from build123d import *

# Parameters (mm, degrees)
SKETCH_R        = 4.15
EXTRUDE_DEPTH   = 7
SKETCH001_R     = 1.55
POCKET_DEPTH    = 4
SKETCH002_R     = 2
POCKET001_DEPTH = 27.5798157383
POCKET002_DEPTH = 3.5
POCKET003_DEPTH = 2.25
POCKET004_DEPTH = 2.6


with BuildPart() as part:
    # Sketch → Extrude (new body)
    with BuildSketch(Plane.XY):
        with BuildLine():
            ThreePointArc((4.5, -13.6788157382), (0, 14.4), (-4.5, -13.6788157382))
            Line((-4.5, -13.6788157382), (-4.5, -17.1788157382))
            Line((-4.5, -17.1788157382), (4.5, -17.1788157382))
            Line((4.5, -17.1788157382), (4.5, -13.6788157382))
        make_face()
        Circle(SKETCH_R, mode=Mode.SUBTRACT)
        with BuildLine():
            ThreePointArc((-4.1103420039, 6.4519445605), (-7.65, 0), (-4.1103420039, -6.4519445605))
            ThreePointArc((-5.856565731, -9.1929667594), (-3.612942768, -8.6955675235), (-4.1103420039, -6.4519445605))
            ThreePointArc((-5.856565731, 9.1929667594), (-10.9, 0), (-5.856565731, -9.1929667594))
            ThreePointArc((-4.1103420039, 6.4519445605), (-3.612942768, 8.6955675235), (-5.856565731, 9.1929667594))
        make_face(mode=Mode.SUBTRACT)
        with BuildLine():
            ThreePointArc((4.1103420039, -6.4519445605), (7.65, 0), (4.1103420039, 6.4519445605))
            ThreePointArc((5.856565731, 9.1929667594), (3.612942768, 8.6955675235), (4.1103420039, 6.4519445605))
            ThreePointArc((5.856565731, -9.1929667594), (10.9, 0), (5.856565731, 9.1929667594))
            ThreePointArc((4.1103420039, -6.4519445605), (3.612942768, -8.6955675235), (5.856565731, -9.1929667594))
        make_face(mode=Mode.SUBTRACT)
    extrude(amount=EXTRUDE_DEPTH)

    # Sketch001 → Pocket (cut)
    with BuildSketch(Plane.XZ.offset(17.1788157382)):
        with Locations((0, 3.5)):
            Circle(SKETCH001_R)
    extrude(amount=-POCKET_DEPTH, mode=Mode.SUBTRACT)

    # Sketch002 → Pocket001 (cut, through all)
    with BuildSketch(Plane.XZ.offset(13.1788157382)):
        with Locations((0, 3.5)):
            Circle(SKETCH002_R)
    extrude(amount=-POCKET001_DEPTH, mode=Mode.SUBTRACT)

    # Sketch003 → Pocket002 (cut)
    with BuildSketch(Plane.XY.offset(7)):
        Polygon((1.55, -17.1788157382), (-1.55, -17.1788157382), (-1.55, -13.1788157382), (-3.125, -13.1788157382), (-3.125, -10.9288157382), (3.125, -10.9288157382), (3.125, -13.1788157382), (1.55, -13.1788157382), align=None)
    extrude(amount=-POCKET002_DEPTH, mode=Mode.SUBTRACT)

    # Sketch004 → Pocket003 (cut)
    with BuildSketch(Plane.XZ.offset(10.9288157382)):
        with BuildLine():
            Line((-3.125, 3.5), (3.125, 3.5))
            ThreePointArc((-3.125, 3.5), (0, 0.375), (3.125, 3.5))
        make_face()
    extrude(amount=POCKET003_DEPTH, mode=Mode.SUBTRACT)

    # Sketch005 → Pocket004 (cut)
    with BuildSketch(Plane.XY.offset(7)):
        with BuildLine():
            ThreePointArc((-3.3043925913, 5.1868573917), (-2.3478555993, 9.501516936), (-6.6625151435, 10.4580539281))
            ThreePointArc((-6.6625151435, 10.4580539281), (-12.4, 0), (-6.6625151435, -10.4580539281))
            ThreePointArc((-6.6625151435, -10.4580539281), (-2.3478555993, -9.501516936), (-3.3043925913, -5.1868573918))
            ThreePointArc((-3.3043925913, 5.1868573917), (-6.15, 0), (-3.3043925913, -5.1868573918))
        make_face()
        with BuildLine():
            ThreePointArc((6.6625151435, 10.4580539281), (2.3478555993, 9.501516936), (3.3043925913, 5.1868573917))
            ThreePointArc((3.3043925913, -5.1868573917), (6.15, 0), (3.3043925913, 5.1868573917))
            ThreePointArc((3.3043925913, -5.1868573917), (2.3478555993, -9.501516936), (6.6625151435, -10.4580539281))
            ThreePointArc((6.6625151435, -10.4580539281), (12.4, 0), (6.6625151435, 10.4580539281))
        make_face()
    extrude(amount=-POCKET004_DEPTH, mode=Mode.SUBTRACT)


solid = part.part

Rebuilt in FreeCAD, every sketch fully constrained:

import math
import FreeCAD as App
import Part
import Sketcher
from FreeCAD import Vector

doc = App.newDocument("Part")
body = doc.addObject("PartDesign::Body", "Body")

# Sketch on XY plane
sketch1 = body.newObject("Sketcher::SketchObject", "Sketch")
sketch1.AttachmentSupport = (doc.getObject("XY_Plane"), [""])
sketch1.MapMode = "FlatFace"
sketch1.addGeometry([
    Part.ArcOfCircle(Part.Circle(Vector(0, 0, 0), Vector(0, 0, 1), 14.4), math.radians(-71.790043), math.radians(251.790043)),  # 0
    Part.LineSegment(Vector(-4.5, -13.678816, 0), Vector(-4.5, -17.178816, 0)),  # 1
    Part.LineSegment(Vector(-4.5, -17.178816, 0), Vector(4.5, -17.178816, 0)),  # 2
    Part.LineSegment(Vector(4.5, -17.178816, 0), Vector(4.5, -13.678816, 0)),  # 3
    Part.ArcOfCircle(Part.Circle(Vector(-4.983454, 7.822456, 0), Vector(0, 0, 1), 1.625), math.radians(-57.5), math.radians(122.5)),  # 4
    Part.ArcOfCircle(Part.Circle(Vector(0, 0, 0), Vector(0, 0, 1), 7.65), math.radians(122.5), math.radians(237.5)),  # 5
    Part.ArcOfCircle(Part.Circle(Vector(-4.983454, -7.822456, 0), Vector(0, 0, 1), 1.625), math.radians(-122.5), math.radians(57.5)),  # 6
    Part.ArcOfCircle(Part.Circle(Vector(0, 0, 0), Vector(0, 0, 1), 10.9), math.radians(122.5), math.radians(237.5)),  # 7
    Part.Circle(Vector(0, 0, 0), Vector(0, 0, 1), 4.15),  # 8
    Part.ArcOfCircle(Part.Circle(Vector(4.983454, -7.822456, 0), Vector(0, 0, 1), 1.625), math.radians(122.5), math.radians(302.5)),  # 9
    Part.ArcOfCircle(Part.Circle(Vector(0, 0, 0), Vector(0, 0, 1), 7.65), math.radians(-57.5), math.radians(57.5)),  # 10
    Part.ArcOfCircle(Part.Circle(Vector(4.983454, 7.822456, 0), Vector(0, 0, 1), 1.625), math.radians(57.5), math.radians(237.5)),  # 11
    Part.ArcOfCircle(Part.Circle(Vector(0, 0, 0), Vector(0, 0, 1), 10.9), math.radians(-57.5), math.radians(57.5)),  # 12
], False)
sketch1.addConstraint([
    Sketcher.Constraint("Coincident", 0, 2, 1, 1),
    Sketcher.Constraint("Coincident", 1, 2, 2, 1),
    Sketcher.Constraint("Coincident", 2, 2, 3, 1),
    Sketcher.Constraint("Coincident", 3, 2, 0, 1),
    Sketcher.Constraint("Tangent", 4, 1, 5, 1),
    Sketcher.Constraint("Tangent", 5, 2, 6, 2),
    Sketcher.Constraint("Tangent", 6, 1, 7, 2),
    Sketcher.Constraint("Tangent", 7, 1, 4, 2),
    Sketcher.Constraint("Tangent", 9, 1, 10, 1),
    Sketcher.Constraint("Tangent", 10, 2, 11, 2),
    Sketcher.Constraint("Tangent", 11, 1, 12, 2),
    Sketcher.Constraint("Tangent", 12, 1, 9, 2),
    Sketcher.Constraint("Vertical", 1),
    Sketcher.Constraint("Horizontal", 2),
    Sketcher.Constraint("Vertical", 3),
    Sketcher.Constraint("Coincident", 0, 3, -1, 1),
    Sketcher.Constraint("Coincident", 5, 3, -1, 1),
    Sketcher.Constraint("Coincident", 7, 3, -1, 1),
    Sketcher.Constraint("Coincident", 8, 3, -1, 1),
    Sketcher.Constraint("Coincident", 10, 3, -1, 1),
    Sketcher.Constraint("Coincident", 12, 3, -1, 1),
    Sketcher.Constraint("Equal", 6, 9),
    Sketcher.Constraint("Equal", 5, 10),
    Sketcher.Constraint("Horizontal", 6, 3, 9, 3),
    Sketcher.Constraint("Horizontal", 4, 3, 11, 3),
    Sketcher.Constraint("Horizontal", 0, 2, 3, 2),
    Sketcher.Constraint("Vertical", 4, 3, 6, 3),
    Sketcher.Constraint("Diameter", 8, 8.3),
    Sketcher.Constraint("Radius", 0, 14.4),
    Sketcher.Constraint("Radius", 7, 10.9),
    Sketcher.Constraint("DistanceX", 2, 1, 2, 2, 9.0),
    Sketcher.Constraint("Radius", 5, 7.65),
    Sketcher.Constraint("DistanceY", 1, 2, 1, 1, 3.5),
    Sketcher.Constraint("DistanceY", 6, 3, 4, 3, 15.644911),
])
pad1 = body.newObject("PartDesign::Pad", "Pad")
pad1.Profile = sketch1
pad1.Length = 7

# Sketch on XZ plane
sketch2 = body.newObject("Sketcher::SketchObject", "Sketch001")
sketch2.AttachmentSupport = (doc.getObject("XZ_Plane"), [""])
sketch2.MapMode = "FlatFace"
sketch2.AttachmentOffset = App.Placement(Vector(0, 0, 17.178816), App.Rotation())
sketch2.addGeometry(Part.Circle(Vector(0, 3.5, 0), Vector(0, 0, 1), 1.55), False)
sketch2.addConstraint([
    Sketcher.Constraint("PointOnObject", 0, 3, -2),
    Sketcher.Constraint("Diameter", 0, 3.1),
    Sketcher.Constraint("DistanceY", -1, 1, 0, 3, 3.5),
])
pocket1 = body.newObject("PartDesign::Pocket", "Pocket")
pocket1.Profile = sketch2
pocket1.Length = 4

# Sketch on XZ plane
sketch3 = body.newObject("Sketcher::SketchObject", "Sketch002")
sketch3.AttachmentSupport = (doc.getObject("XZ_Plane"), [""])
sketch3.MapMode = "FlatFace"
sketch3.AttachmentOffset = App.Placement(Vector(0, 0, 13.178816), App.Rotation())
sketch3.addGeometry(Part.Circle(Vector(0, 3.5, 0), Vector(0, 0, 1), 2), False)
sketch3.addConstraint([
    Sketcher.Constraint("PointOnObject", 0, 3, -2),
    Sketcher.Constraint("Diameter", 0, 4.0),
    Sketcher.Constraint("DistanceY", -1, 1, 0, 3, 3.5),
])
pocket2 = body.newObject("PartDesign::Pocket", "Pocket001")
pocket2.Profile = sketch3
pocket2.Type = "ThroughAll"

# Sketch on XY plane
sketch4 = body.newObject("Sketcher::SketchObject", "Sketch003")
sketch4.AttachmentSupport = (doc.getObject("XY_Plane"), [""])
sketch4.MapMode = "FlatFace"
sketch4.AttachmentOffset = App.Placement(Vector(0, 0, 7), App.Rotation())
sketch4.addGeometry([
    Part.LineSegment(Vector(-1.55, -17.178816, 0), Vector(1.55, -17.178816, 0)),  # 0
    Part.LineSegment(Vector(1.55, -17.178816, 0), Vector(1.55, -13.178816, 0)),  # 1
    Part.LineSegment(Vector(1.55, -13.178816, 0), Vector(3.125, -13.178816, 0)),  # 2
    Part.LineSegment(Vector(3.125, -13.178816, 0), Vector(3.125, -10.928816, 0)),  # 3
    Part.LineSegment(Vector(3.125, -10.928816, 0), Vector(-3.125, -10.928816, 0)),  # 4
    Part.LineSegment(Vector(-3.125, -10.928816, 0), Vector(-3.125, -13.178816, 0)),  # 5
    Part.LineSegment(Vector(-3.125, -13.178816, 0), Vector(-1.55, -13.178816, 0)),  # 6
    Part.LineSegment(Vector(-1.55, -13.178816, 0), Vector(-1.55, -17.178816, 0)),  # 7
], False)
sketch4.addConstraint([
    Sketcher.Constraint("Coincident", 0, 2, 1, 1),
    Sketcher.Constraint("Coincident", 1, 2, 2, 1),
    Sketcher.Constraint("Coincident", 2, 2, 3, 1),
    Sketcher.Constraint("Coincident", 3, 2, 4, 1),
    Sketcher.Constraint("Coincident", 4, 2, 5, 1),
    Sketcher.Constraint("Coincident", 5, 2, 6, 1),
    Sketcher.Constraint("Coincident", 6, 2, 7, 1),
    Sketcher.Constraint("Coincident", 7, 2, 0, 1),
    Sketcher.Constraint("Horizontal", 0),
    Sketcher.Constraint("Vertical", 1),
    Sketcher.Constraint("Horizontal", 2),
    Sketcher.Constraint("Vertical", 3),
    Sketcher.Constraint("Horizontal", 4),
    Sketcher.Constraint("Vertical", 5),
    Sketcher.Constraint("Horizontal", 6),
    Sketcher.Constraint("Vertical", 7),
    Sketcher.Constraint("Symmetric", 2, 2, 5, 2, -2),
    Sketcher.Constraint("Equal", 2, 6),
    Sketcher.Constraint("DistanceY", 1, 1, 1, 2, 4.0),
    Sketcher.Constraint("DistanceX", 0, 1, 0, 2, 3.1),
    Sketcher.Constraint("DistanceX", 4, 2, 4, 1, 6.25),
    Sketcher.Constraint("DistanceY", 3, 1, 3, 2, 2.25),
    Sketcher.Constraint("DistanceY", 0, 2, -1, 1, 17.178816),
])
pocket3 = body.newObject("PartDesign::Pocket", "Pocket002")
pocket3.Profile = sketch4
pocket3.Length = 3.5

# Sketch on XZ plane
sketch5 = body.newObject("Sketcher::SketchObject", "Sketch004")
sketch5.AttachmentSupport = (doc.getObject("XZ_Plane"), [""])
sketch5.MapMode = "FlatFace"
sketch5.AttachmentOffset = App.Placement(Vector(0, 0, 10.928816), App.Rotation())
sketch5.addGeometry([
    Part.LineSegment(Vector(3.125, 3.5, 0), Vector(-3.125, 3.5, 0)),
    Part.ArcOfCircle(Part.Circle(Vector(0, 3.5, 0), Vector(0, 0, 1), 3.125), math.radians(180), math.radians(360)),
], False)
sketch5.addConstraint([
    Sketcher.Constraint("Coincident", 0, 1, 1, 2),
    Sketcher.Constraint("Coincident", 1, 1, 0, 2),
    Sketcher.Constraint("Horizontal", 0),
    Sketcher.Constraint("PointOnObject", 1, 3, -2),
    Sketcher.Constraint("Horizontal", 1, 3, 0, 1),
    Sketcher.Constraint("Radius", 1, 3.125),
    Sketcher.Constraint("DistanceY", -1, 1, 1, 3, 3.5),
])
pocket4 = body.newObject("PartDesign::Pocket", "Pocket003")
pocket4.Profile = sketch5
pocket4.Length = 2.25
pocket4.Reversed = True

# Sketch on XY plane
sketch6 = body.newObject("Sketcher::SketchObject", "Sketch005")
sketch6.AttachmentSupport = (doc.getObject("XY_Plane"), [""])
sketch6.MapMode = "FlatFace"
sketch6.AttachmentOffset = App.Placement(Vector(0, 0, 7), App.Rotation())
sketch6.addGeometry([
    Part.ArcOfCircle(Part.Circle(Vector(-4.983454, 7.822456, 0), Vector(0, 0, 1), 3.125), math.radians(-57.5), math.radians(122.5)),  # 0
    Part.ArcOfCircle(Part.Circle(Vector(0, 0, 0), Vector(0, 0, 1), 12.4), math.radians(122.5), math.radians(237.5)),  # 1
    Part.ArcOfCircle(Part.Circle(Vector(-4.983454, -7.822456, 0), Vector(0, 0, 1), 3.125), math.radians(-122.5), math.radians(57.5)),  # 2
    Part.ArcOfCircle(Part.Circle(Vector(0, 0, 0), Vector(0, 0, 1), 6.15), math.radians(122.5), math.radians(237.5)),  # 3
    Part.ArcOfCircle(Part.Circle(Vector(4.983454, 7.822456, 0), Vector(0, 0, 1), 3.125), math.radians(57.5), math.radians(237.5)),  # 4
    Part.ArcOfCircle(Part.Circle(Vector(0, 0, 0), Vector(0, 0, 1), 6.15), math.radians(-57.5), math.radians(57.5)),  # 5
    Part.ArcOfCircle(Part.Circle(Vector(4.983454, -7.822456, 0), Vector(0, 0, 1), 3.125), math.radians(122.5), math.radians(302.5)),  # 6
    Part.ArcOfCircle(Part.Circle(Vector(0, 0, 0), Vector(0, 0, 1), 12.4), math.radians(-57.5), math.radians(57.5)),  # 7
], False)
sketch6.addConstraint([
    Sketcher.Constraint("Tangent", 0, 2, 1, 1),
    Sketcher.Constraint("Tangent", 1, 2, 2, 1),
    Sketcher.Constraint("Tangent", 2, 2, 3, 2),
    Sketcher.Constraint("Tangent", 3, 1, 0, 1),
    Sketcher.Constraint("Tangent", 4, 2, 5, 2),
    Sketcher.Constraint("Tangent", 5, 1, 6, 1),
    Sketcher.Constraint("Tangent", 6, 2, 7, 1),
    Sketcher.Constraint("Tangent", 7, 2, 4, 1),
    Sketcher.Constraint("Coincident", 1, 3, -1, 1),
    Sketcher.Constraint("Coincident", 3, 3, -1, 1),
    Sketcher.Constraint("Coincident", 5, 3, -1, 1),
    Sketcher.Constraint("Coincident", 7, 3, -1, 1),
    Sketcher.Constraint("Equal", 2, 4),
    Sketcher.Constraint("Equal", 3, 5),
    Sketcher.Constraint("Horizontal", 0, 3, 4, 3),
    Sketcher.Constraint("Horizontal", 2, 3, 6, 3),
    Sketcher.Constraint("Vertical", 0, 3, 2, 3),
    Sketcher.Constraint("Radius", 1, 12.4),
    Sketcher.Constraint("Radius", 3, 6.15),
    Sketcher.Constraint("DistanceY", 0, 3, 0, 2, 2.635598),
])
pocket5 = body.newObject("PartDesign::Pocket", "Pocket004")
pocket5.Profile = sketch6
pocket5.Length = 2.6

doc.recompute()
